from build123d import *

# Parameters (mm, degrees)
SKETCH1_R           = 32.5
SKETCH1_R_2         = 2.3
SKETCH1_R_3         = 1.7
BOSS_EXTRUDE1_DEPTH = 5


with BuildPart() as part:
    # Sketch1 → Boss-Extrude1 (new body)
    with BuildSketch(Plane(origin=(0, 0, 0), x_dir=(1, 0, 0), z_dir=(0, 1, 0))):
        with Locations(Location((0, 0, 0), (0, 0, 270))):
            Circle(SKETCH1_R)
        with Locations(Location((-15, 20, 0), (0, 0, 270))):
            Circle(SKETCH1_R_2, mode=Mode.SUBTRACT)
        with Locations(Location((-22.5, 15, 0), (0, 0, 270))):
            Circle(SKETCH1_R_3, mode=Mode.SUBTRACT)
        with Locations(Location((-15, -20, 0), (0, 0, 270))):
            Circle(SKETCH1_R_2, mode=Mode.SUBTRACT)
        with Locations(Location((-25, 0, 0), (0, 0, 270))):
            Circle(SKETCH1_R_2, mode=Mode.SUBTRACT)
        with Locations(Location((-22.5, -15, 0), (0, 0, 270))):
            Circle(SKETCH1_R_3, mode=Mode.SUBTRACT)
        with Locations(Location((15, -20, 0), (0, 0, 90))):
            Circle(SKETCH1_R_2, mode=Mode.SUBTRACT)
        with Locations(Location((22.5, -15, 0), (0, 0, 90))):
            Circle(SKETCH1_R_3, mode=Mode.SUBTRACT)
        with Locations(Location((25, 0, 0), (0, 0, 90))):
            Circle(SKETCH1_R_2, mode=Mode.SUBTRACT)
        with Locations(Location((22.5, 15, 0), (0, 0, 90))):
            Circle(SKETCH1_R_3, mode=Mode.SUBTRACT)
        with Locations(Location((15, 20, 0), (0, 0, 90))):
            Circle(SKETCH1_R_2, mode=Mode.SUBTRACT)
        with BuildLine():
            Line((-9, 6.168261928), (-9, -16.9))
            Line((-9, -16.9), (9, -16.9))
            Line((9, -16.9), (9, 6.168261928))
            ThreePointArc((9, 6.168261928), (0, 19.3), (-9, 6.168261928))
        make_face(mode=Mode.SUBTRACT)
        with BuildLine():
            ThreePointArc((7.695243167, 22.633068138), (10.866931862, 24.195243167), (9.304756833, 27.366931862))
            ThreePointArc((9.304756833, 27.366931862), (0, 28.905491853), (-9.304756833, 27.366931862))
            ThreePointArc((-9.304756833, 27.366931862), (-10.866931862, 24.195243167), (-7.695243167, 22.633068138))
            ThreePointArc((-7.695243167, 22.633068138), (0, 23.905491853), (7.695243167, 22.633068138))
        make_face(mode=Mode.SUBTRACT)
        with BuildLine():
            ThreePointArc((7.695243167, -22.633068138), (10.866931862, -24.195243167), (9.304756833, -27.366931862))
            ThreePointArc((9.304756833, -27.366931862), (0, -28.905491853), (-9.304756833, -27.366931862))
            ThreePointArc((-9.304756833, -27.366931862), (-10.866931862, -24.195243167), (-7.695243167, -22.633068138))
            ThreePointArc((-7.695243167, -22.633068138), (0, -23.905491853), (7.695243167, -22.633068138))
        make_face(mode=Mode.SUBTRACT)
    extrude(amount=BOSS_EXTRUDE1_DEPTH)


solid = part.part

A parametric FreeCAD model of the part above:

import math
import FreeCAD as App
import Part
import Sketcher
Q = App.Units.Quantity

doc = App.newDocument("Part")
body = doc.addObject("PartDesign::Body", "Body")

# Sketch on XZ plane
sketch1 = body.newObject("Sketcher::SketchObject", "Sketch")
sketch1.AttachmentSupport = (doc.getObject("XZ_Plane"), [""])
sketch1.MapMode = "FlatFace"
sketch1.addGeometry(Part.Circle(App.Vector(0, 0, 0), App.Vector(0, 0, 1), 32.5), False)
sketch1.addGeometry(Part.Circle(App.Vector(-22.5, -15, 0), App.Vector(0, 0, 1), 1.7), False)
sketch1.addGeometry(Part.Circle(App.Vector(-15, -20, 0), App.Vector(0, 0, 1), 2.3), False)
sketch1.addGeometry(Part.ArcOfCircle(Part.Circle(App.Vector(8.5, -25, 0), App.Vector(0, 0, 1), 2.5), math.radians(-71), math.radians(109)), False)
sketch1.addGeometry(Part.ArcOfCircle(Part.Circle(App.Vector(0, 0, 0), App.Vector(0, 0, 1), 23.9), math.radians(-109), math.radians(-71)), False)
sketch1.addGeometry(Part.ArcOfCircle(Part.Circle(App.Vector(-8.5, -25, 0), App.Vector(0, 0, 1), 2.5), math.radians(71), math.radians(251)), False)
sketch1.addGeometry(Part.ArcOfCircle(Part.Circle(App.Vector(0, 0, 0), App.Vector(0, 0, 1), 28.9), math.radians(-109), math.radians(-71)), False)
sketch1.addGeometry(Part.LineSegment(App.Vector(-9, 16.9, 0), App.Vector(-9, -6.2, 0)), False)
sketch1.addGeometry(Part.ArcOfCircle(Part.Circle(App.Vector(0, -9.7, 0), App.Vector(0, 0, 1), 9.7), math.radians(159), math.radians(381)), False)
sketch1.addGeometry(Part.LineSegment(App.Vector(9, -6.2, 0), App.Vector(9, 16.9, 0)), False)
sketch1.addGeometry(Part.LineSegment(App.Vector(9, 16.9, 0), App.Vector(-9, 16.9, 0)), False)
sketch1.addGeometry(Part.Circle(App.Vector(-25, 0, 0), App.Vector(0, 0, 1), 2.3), False)
sketch1.addGeometry(Part.Circle(App.Vector(-22.5, 15, 0), App.Vector(0, 0, 1), 1.7), False)
sketch1.addGeometry(Part.Circle(App.Vector(-15, 20, 0), App.Vector(0, 0, 1), 2.3), False)
sketch1.addGeometry(Part.Circle(App.Vector(15, -20, 0), App.Vector(0, 0, 1), 2.3), False)
sketch1.addGeometry(Part.Circle(App.Vector(22.5, -15, 0), App.Vector(0, 0, 1), 1.7), False)
sketch1.addGeometry(Part.Circle(App.Vector(25, 0, 0), App.Vector(0, 0, 1), 2.3), False)
sketch1.addGeometry(Part.ArcOfCircle(Part.Circle(App.Vector(0, 0, 0), App.Vector(0, 0, 1), 23.9), math.radians(71), math.radians(109)), False)
sketch1.addGeometry(Part.ArcOfCircle(Part.Circle(App.Vector(8.5, 25, 0), App.Vector(0, 0, 1), 2.5), math.radians(-109), math.radians(71)), False)
sketch1.addGeometry(Part.ArcOfCircle(Part.Circle(App.Vector(0, 0, 0), App.Vector(0, 0, 1), 28.9), math.radians(71), math.radians(109)), False)
sketch1.addGeometry(Part.ArcOfCircle(Part.Circle(App.Vector(-8.5, 25, 0), App.Vector(0, 0, 1), 2.5), math.radians(109), math.radians(289)), False)
sketch1.addGeometry(Part.Circle(App.Vector(15, 20, 0), App.Vector(0, 0, 1), 2.3), False)
sketch1.addGeometry(Part.Circle(App.Vector(22.5, 15, 0), App.Vector(0, 0, 1), 1.7), False)
sketch1.addConstraint(Sketcher.Constraint("Tangent", 3, 2, 4, 2))
sketch1.addConstraint(Sketcher.Constraint("Tangent", 4, 1, 5, 1))
sketch1.addConstraint(Sketcher.Constraint("Tangent", 5, 2, 6, 1))
sketch1.addConstraint(Sketcher.Constraint("Tangent", 6, 2, 3, 1))
sketch1.addConstraint(Sketcher.Constraint("Coincident", 7, 2, 8, 1))
sketch1.addConstraint(Sketcher.Constraint("Coincident", 8, 2, 9, 1))
sketch1.addConstraint(Sketcher.Constraint("Coincident", 9, 2, 10, 1))
sketch1.addConstraint(Sketcher.Constraint("Coincident", 10, 2, 7, 1))
sketch1.addConstraint(Sketcher.Constraint("Tangent", 17, 1, 18, 1))
sketch1.addConstraint(Sketcher.Constraint("Tangent", 18, 2, 19, 1))
sketch1.addConstraint(Sketcher.Constraint("Tangent", 19, 2, 20, 1))
sketch1.addConstraint(Sketcher.Constraint("Tangent", 20, 2, 17, 2))
sketch1.addConstraint(Sketcher.Constraint("Vertical", 7))
sketch1.addConstraint(Sketcher.Constraint("Vertical", 9))
sketch1.addConstraint(Sketcher.Constraint("Horizontal", 10))
sketch1.addConstraint(Sketcher.Constraint("Coincident", 0, 3, -1, 1))
sketch1.addConstraint(Sketcher.Constraint("Coincident", 4, 3, -1, 1))
sketch1.addConstraint(Sketcher.Constraint("Coincident", 6, 3, -1, 1))
sketch1.addConstraint(Sketcher.Constraint("Coincident", 17, 3, -1, 1))
sketch1.addConstraint(Sketcher.Constraint("Coincident", 19, 3, -1, 1))
sketch1.addConstraint(Sketcher.Constraint("Equal", 2, 11))
sketch1.addConstraint(Sketcher.Constraint("Equal", 1, 12))
sketch1.addConstraint(Sketcher.Constraint("Equal", 11, 13))
sketch1.addConstraint(Sketcher.Constraint("Equal", 13, 14))
sketch1.addConstraint(Sketcher.Constraint("Equal", 12, 15))
sketch1.addConstraint(Sketcher.Constraint("Equal", 14, 16))
sketch1.addConstraint(Sketcher.Constraint("Equal", 4, 17))
sketch1.addConstraint(Sketcher.Constraint("Equal", 5, 18))
sketch1.addConstraint(Sketcher.Constraint("Equal", 16, 21))
sketch1.addConstraint(Sketcher.Constraint("Equal", 15, 22))
sketch1.addConstraint(Sketcher.Constraint("Symmetric", 13, 3, 14, 3, -1, 1))
sketch1.addConstraint(Sketcher.Constraint("Symmetric", 12, 3, 15, 3, -1, 1))
sketch1.addConstraint(Sketcher.Constraint("Symmetric", 11, 3, 16, 3, -1, 1))
sketch1.addConstraint(Sketcher.Constraint("Symmetric", 2, 3, 21, 3, -1, 1))
sketch1.addConstraint(Sketcher.Constraint("Symmetric", 1, 3, 22, 3, -1, 1))
sketch1.addConstraint(Sketcher.Constraint("Symmetric", 2, 3, 14, 3, -2))
sketch1.addConstraint(Sketcher.Constraint("Symmetric", 1, 3, 15, 3, -2))
sketch1.addConstraint(Sketcher.Constraint("Symmetric", 7, 2, 8, 2, -2))
sketch1.addConstraint(Sketcher.Constraint("PointOnObject", 11, 3, -1))
sketch1.addConstraint(Sketcher.Constraint("Horizontal", 3, 3, 5, 3))
sketch1.addConstraint(Sketcher.Constraint("Horizontal", 18, 3, 20, 3))
sketch1.addConstraint(Sketcher.Constraint("Vertical", 3, 3, 18, 3))
sketch1.addConstraint(Sketcher.Constraint("Diameter", 0, Q("65 mm")))
sketch1.addConstraint(Sketcher.Constraint("Diameter", 1, Q("3.4 mm")))
sketch1.addConstraint(Sketcher.Constraint("Diameter", 2, Q("4.6 mm")))
sketch1.addConstraint(Sketcher.Constraint("Radius", 3, Q("2.5 mm")))
sketch1.addConstraint(Sketcher.Constraint("DistanceX", 10, 2, 10, 1, Q("18 mm")))
sketch1.addConstraint(Sketcher.Constraint("Radius", 8, Q("9.65 mm")))
sketch1.addConstraint(Sketcher.Constraint("DistanceY", 1, 3, -1, 1, Q("15 mm")))
sketch1.addConstraint(Sketcher.Constraint("DistanceX", 2, 3, -1, 1, Q("15 mm")))
sketch1.addConstraint(Sketcher.Constraint("DistanceY", 2, 3, -1, 1, Q("20 mm")))
sketch1.addConstraint(Sketcher.Constraint("DistanceY", 3, 3, -1, 1, Q("25 mm")))
sketch1.addConstraint(Sketcher.Constraint("DistanceX", 11, 3, -1, 1, Q("25 mm")))
sketch1.addConstraint(Sketcher.Constraint("DistanceX", 1, 3, 3, 3, Q("31 mm")))
sketch1.addConstraint(Sketcher.Constraint("DistanceX", 5, 3, 3, 3, Q("17 mm")))
sketch1.addConstraint(Sketcher.Constraint("DistanceY", -1, 1, 9, 2, Q("16.9 mm")))
sketch1.addConstraint(Sketcher.Constraint("DistanceY", 8, 3, -1, 1, Q("9.65 mm")))
pad1 = body.newObject("PartDesign::Pad", "Pad")
pad1.Profile = sketch1
pad1.Length = 5
pad1.Reversed = True

doc.recompute()
